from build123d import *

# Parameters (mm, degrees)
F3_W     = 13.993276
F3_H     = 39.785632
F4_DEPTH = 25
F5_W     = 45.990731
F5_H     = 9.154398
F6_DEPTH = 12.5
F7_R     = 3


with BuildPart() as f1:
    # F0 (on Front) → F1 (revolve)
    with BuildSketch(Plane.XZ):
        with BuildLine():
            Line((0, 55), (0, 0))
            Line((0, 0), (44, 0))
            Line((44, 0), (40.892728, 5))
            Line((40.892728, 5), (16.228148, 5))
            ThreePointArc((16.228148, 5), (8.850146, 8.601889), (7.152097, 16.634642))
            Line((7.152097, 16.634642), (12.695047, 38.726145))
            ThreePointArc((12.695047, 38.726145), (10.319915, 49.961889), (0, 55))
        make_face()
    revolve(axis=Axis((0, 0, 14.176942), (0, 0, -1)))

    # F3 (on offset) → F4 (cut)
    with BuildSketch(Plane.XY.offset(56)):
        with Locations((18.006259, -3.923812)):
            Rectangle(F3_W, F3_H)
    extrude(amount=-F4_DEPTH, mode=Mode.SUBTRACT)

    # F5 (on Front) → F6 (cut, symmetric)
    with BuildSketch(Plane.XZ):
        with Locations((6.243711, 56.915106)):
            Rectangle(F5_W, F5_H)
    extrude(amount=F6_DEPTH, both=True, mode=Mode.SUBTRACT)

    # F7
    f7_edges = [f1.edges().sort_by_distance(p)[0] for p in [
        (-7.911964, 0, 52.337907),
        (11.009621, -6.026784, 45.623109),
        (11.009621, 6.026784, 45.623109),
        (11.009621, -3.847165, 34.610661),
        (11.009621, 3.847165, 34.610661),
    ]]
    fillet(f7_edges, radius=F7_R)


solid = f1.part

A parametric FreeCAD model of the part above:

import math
import FreeCAD as App
import Part
import Sketcher

V = App.Vector
Q = App.Units.Quantity


def edges_at(feature, points):
    """Names of the edges that pass closest to the given points."""
    edges = feature.Shape.Edges
    near = lambda p: min(range(len(edges)), key=lambda i: edges[i].distToShape(Part.Vertex(*p))[0])
    return sorted({f"Edge{near(p) + 1}" for p in points})

doc = App.newDocument("Part")
params = doc.addObject("Spreadsheet::Sheet", "Params")
for row, (alias, value) in enumerate([
    ("sketch1_width", "44 mm"),
    ("sketch1_height", "55 mm"),
    ("revolution_angle", "360 deg"),
    ("pocket1_length", "25 mm"),
    ("pocket2_length", "25 mm"),
    ("fillet_radius", "3 mm"),
], start=1):
    params.set(f"A{row}", alias)
    params.set(f"B{row}", "=" + value)
    params.setAlias(f"B{row}", alias)

body = doc.addObject("PartDesign::Body", "Body")

sketch1 = body.newObject("Sketcher::SketchObject", "Sketch")
sketch1.AttachmentSupport = (doc.getObject("XZ_Plane"), [""])
sketch1.MapMode = "FlatFace"
sketch1.addGeometry([
    Part.LineSegment(V(0, 55, 0), V(0, 0, 0)),
    Part.LineSegment(V(0, 0, 0), V(44, 0, 0)),
    Part.LineSegment(V(44, 0, 0), V(41, 5, 0)),
    Part.LineSegment(V(41, 5, 0), V(16, 5, 0)),
    Part.ArcOfCircle(Part.Circle(V(16, 14, 0), V(0, 0, 1), 9), math.radians(166), math.radians(270)),
    Part.LineSegment(V(7, 17, 0), V(13, 39, 0)),
    Part.ArcOfCircle(Part.Circle(V(0, 42, 0), V(0, 0, 1), 13), math.radians(-14), math.radians(90)),
], False)
sketch1.addConstraint([
    Sketcher.Constraint("Coincident", 0, 2, 1, 1),
    Sketcher.Constraint("Coincident", 1, 2, 2, 1),
    Sketcher.Constraint("Coincident", 2, 2, 3, 1),
    Sketcher.Constraint("Tangent", 3, 2, 4, 2),
    Sketcher.Constraint("Tangent", 4, 1, 5, 1),
    Sketcher.Constraint("Tangent", 5, 2, 6, 1),
    Sketcher.Constraint("Coincident", 6, 2, 0, 1),
    Sketcher.Constraint("Vertical", 0),
    Sketcher.Constraint("Horizontal", 1),
    Sketcher.Constraint("Horizontal", 3),
    Sketcher.Constraint("Coincident", 0, 2, -1, 1),
    Sketcher.Constraint("PointOnObject", 6, 3, -2),
    Sketcher.Constraint("DistanceX", 1, 1, 1, 2, Q("44 mm")),
    Sketcher.Constraint("DistanceY", 0, 2, 0, 1, Q("55 mm")),
    Sketcher.Constraint("DistanceY", -1, 1, 2, 2, Q("5 mm")),
    Sketcher.Constraint("Radius", 4, Q("9.357382 mm")),
    Sketcher.Constraint("Radius", 6, Q("13.088558 mm")),
    Sketcher.Constraint("DistanceX", 3, 2, 3, 1, Q("24.66458 mm")),
    Sketcher.Constraint("DistanceY", 4, 1, 6, 3, Q("25.2768 mm")),
])
sketch1.setExpression("Constraints[12]", "Params.sketch1_width")
sketch1.setExpression("Constraints[13]", "Params.sketch1_height")
revolution = body.newObject("PartDesign::Revolution", "Revolution")
revolution.Profile = sketch1
revolution.ReferenceAxis = (sketch1, ["V_Axis"])
revolution.setExpression("Angle", "Params.revolution_angle")

sketch2 = body.newObject("Sketcher::SketchObject", "Sketch001")
sketch2.AttachmentSupport = (doc.getObject("XY_Plane"), [""])
sketch2.MapMode = "FlatFace"
sketch2.AttachmentOffset = App.Placement(V(0, 0, 56), App.Rotation())
sketch2.addGeometry([
    Part.LineSegment(V(11, 16, 0), V(11, -24, 0)),
    Part.LineSegment(V(11, -24, 0), V(25, -24, 0)),
    Part.LineSegment(V(25, -24, 0), V(25, 16, 0)),
    Part.LineSegment(V(25, 16, 0), V(11, 16, 0)),
], False)
sketch2.addConstraint([
    Sketcher.Constraint("Coincident", 0, 2, 1, 1),
    Sketcher.Constraint("Coincident", 1, 2, 2, 1),
    Sketcher.Constraint("Coincident", 2, 2, 3, 1),
    Sketcher.Constraint("Coincident", 3, 2, 0, 1),
    Sketcher.Constraint("Vertical", 0),
    Sketcher.Constraint("Horizontal", 1),
    Sketcher.Constraint("Vertical", 2),
    Sketcher.Constraint("Horizontal", 3),
    Sketcher.Constraint("DistanceX", 1, 1, 1, 2, Q("13.993276 mm")),
    Sketcher.Constraint("DistanceY", 0, 2, 0, 1, Q("39.785632 mm")),
    Sketcher.Constraint("DistanceX", -1, 1, 0, 2, Q("11.009621 mm")),
    Sketcher.Constraint("DistanceY", 0, 2, -1, 1, Q("23.816628 mm")),
])
pocket1 = body.newObject("PartDesign::Pocket", "Pocket")
pocket1.Profile = sketch2
pocket1.setExpression("Length", "Params.pocket1_length")

sketch3 = body.newObject("Sketcher::SketchObject", "Sketch002")
sketch3.AttachmentSupport = (doc.getObject("XZ_Plane"), [""])
sketch3.MapMode = "FlatFace"
sketch3.addGeometry([
    Part.LineSegment(V(-17, 61, 0), V(-17, 52, 0)),
    Part.LineSegment(V(-17, 52, 0), V(29, 52, 0)),
    Part.LineSegment(V(29, 52, 0), V(29, 61, 0)),
    Part.LineSegment(V(29, 61, 0), V(-17, 61, 0)),
], False)
sketch3.addConstraint([
    Sketcher.Constraint("Coincident", 0, 2, 1, 1),
    Sketcher.Constraint("Coincident", 1, 2, 2, 1),
    Sketcher.Constraint("Coincident", 2, 2, 3, 1),
    Sketcher.Constraint("Coincident", 3, 2, 0, 1),
    Sketcher.Constraint("Vertical", 0),
    Sketcher.Constraint("Horizontal", 1),
    Sketcher.Constraint("Vertical", 2),
    Sketcher.Constraint("Horizontal", 3),
    Sketcher.Constraint("DistanceX", 1, 1, 1, 2, Q("45.990731 mm")),
    Sketcher.Constraint("DistanceY", 0, 2, 0, 1, Q("9.154398 mm")),
    Sketcher.Constraint("DistanceX", 0, 2, -1, 1, Q("16.751655 mm")),
    Sketcher.Constraint("DistanceY", -1, 1, 0, 2, Q("52.337907 mm")),
])
pocket2 = body.newObject("PartDesign::Pocket", "Pocket001")
pocket2.Profile = sketch3
pocket2.setExpression("Length", "Params.pocket2_length")
pocket2.Midplane = True
doc.recompute()

fillet = body.newObject("PartDesign::Fillet", "Fillet")
fillet.Base = (pocket2, edges_at(pocket2, [
    (-7.912, 0, 52.338),
    (11.01, -6.027, 45.623),
    (11.01, 6.027, 45.623),
    (11.01, -3.847, 34.611),
    (11.01, 3.847, 34.611),
]))
fillet.setExpression("Radius", "Params.fillet_radius")

doc.recompute()
